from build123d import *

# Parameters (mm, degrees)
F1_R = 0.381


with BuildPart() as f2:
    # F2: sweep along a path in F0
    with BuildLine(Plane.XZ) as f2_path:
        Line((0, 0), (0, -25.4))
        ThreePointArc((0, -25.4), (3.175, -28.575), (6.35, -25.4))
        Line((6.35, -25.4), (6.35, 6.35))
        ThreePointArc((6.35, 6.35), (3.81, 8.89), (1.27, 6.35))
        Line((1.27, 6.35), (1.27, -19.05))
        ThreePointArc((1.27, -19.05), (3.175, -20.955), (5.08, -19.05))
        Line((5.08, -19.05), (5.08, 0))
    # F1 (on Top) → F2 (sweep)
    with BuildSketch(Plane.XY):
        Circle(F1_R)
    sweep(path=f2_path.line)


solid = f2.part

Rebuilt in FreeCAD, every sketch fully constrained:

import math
import FreeCAD as App
import Part
import Sketcher

V = App.Vector
Q = App.Units.Quantity

doc = App.newDocument("Part")
body = doc.addObject("PartDesign::Body", "Body")

# Sketch on XY plane
sketch1 = body.newObject("Sketcher::SketchObject", "Sketch")
sketch1.AttachmentSupport = (doc.getObject("XY_Plane"), [""])
sketch1.MapMode = "FlatFace"
sketch1.addGeometry(Part.Circle(V(0, 0, 0), V(0, 0, 1), 0.381), False)
sketch1.addConstraint([
    Sketcher.Constraint("Coincident", 0, 3, -1, 1),
    Sketcher.Constraint("Diameter", 0, Q("0.03 in")),
])

# Sketch on XZ plane
sketch2 = body.newObject("Sketcher::SketchObject", "Sketch001")
sketch2.AttachmentSupport = (doc.getObject("XZ_Plane"), [""])
sketch2.MapMode = "FlatFace"
sketch2.addGeometry([
    Part.LineSegment(V(0, 0, 0), V(0, -25.4, 0)),  # 0
    Part.ArcOfCircle(Part.Circle(V(3.175, -25.4, 0), V(0, 0, 1), 3.175), math.radians(180), math.radians(360)),  # 1
    Part.LineSegment(V(6.35, -25.4, 0), V(6.35, 6.35, 0)),  # 2
    Part.ArcOfCircle(Part.Circle(V(3.81, 6.35, 0), V(0, 0, 1), 2.54), math.radians(0), math.radians(180)),  # 3
    Part.LineSegment(V(1.27, 6.35, 0), V(1.27, -19.05, 0)),  # 4
    Part.ArcOfCircle(Part.Circle(V(3.175, -19.05, 0), V(0, 0, 1), 1.905), math.radians(180), math.radians(360)),  # 5
    Part.LineSegment(V(5.08, -19.05, 0), V(5.08, 0, 0)),  # 6
], False)
sketch2.addConstraint([
    Sketcher.Constraint("Tangent", 0, 2, 1, 1),
    Sketcher.Constraint("Tangent", 1, 2, 2, 1),
    Sketcher.Constraint("Tangent", 2, 2, 3, 1),
    Sketcher.Constraint("Tangent", 3, 2, 4, 1),
    Sketcher.Constraint("Tangent", 4, 2, 5, 1),
    Sketcher.Constraint("Tangent", 5, 2, 6, 1),
    Sketcher.Constraint("Vertical", 0),
    Sketcher.Constraint("Vertical", 2),
    Sketcher.Constraint("Vertical", 4),
    Sketcher.Constraint("Vertical", 6),
    Sketcher.Constraint("Coincident", 0, 1, -1, 1),
    Sketcher.Constraint("PointOnObject", 6, 2, -1),
    Sketcher.Constraint("Vertical", 1, 3, 5, 3),
    Sketcher.Constraint("Equal", 0, 4),
    Sketcher.Constraint("Radius", 3, Q("0.1 in")),
    Sketcher.Constraint("DistanceY", 0, 2, 0, 1, Q("1 in")),
    Sketcher.Constraint("Radius", 1, Q("0.125 in")),
    Sketcher.Constraint("DistanceY", 2, 1, 2, 2, Q("1.25 in")),
])
doc.recompute()

additivepipe = body.newObject("PartDesign::AdditivePipe", "AdditivePipe")
additivepipe.Profile = sketch1
additivepipe.Spine = (sketch2, ["Edge1", "Edge2", "Edge3", "Edge4", "Edge5", "Edge6", "Edge7"])

doc.recompute()
